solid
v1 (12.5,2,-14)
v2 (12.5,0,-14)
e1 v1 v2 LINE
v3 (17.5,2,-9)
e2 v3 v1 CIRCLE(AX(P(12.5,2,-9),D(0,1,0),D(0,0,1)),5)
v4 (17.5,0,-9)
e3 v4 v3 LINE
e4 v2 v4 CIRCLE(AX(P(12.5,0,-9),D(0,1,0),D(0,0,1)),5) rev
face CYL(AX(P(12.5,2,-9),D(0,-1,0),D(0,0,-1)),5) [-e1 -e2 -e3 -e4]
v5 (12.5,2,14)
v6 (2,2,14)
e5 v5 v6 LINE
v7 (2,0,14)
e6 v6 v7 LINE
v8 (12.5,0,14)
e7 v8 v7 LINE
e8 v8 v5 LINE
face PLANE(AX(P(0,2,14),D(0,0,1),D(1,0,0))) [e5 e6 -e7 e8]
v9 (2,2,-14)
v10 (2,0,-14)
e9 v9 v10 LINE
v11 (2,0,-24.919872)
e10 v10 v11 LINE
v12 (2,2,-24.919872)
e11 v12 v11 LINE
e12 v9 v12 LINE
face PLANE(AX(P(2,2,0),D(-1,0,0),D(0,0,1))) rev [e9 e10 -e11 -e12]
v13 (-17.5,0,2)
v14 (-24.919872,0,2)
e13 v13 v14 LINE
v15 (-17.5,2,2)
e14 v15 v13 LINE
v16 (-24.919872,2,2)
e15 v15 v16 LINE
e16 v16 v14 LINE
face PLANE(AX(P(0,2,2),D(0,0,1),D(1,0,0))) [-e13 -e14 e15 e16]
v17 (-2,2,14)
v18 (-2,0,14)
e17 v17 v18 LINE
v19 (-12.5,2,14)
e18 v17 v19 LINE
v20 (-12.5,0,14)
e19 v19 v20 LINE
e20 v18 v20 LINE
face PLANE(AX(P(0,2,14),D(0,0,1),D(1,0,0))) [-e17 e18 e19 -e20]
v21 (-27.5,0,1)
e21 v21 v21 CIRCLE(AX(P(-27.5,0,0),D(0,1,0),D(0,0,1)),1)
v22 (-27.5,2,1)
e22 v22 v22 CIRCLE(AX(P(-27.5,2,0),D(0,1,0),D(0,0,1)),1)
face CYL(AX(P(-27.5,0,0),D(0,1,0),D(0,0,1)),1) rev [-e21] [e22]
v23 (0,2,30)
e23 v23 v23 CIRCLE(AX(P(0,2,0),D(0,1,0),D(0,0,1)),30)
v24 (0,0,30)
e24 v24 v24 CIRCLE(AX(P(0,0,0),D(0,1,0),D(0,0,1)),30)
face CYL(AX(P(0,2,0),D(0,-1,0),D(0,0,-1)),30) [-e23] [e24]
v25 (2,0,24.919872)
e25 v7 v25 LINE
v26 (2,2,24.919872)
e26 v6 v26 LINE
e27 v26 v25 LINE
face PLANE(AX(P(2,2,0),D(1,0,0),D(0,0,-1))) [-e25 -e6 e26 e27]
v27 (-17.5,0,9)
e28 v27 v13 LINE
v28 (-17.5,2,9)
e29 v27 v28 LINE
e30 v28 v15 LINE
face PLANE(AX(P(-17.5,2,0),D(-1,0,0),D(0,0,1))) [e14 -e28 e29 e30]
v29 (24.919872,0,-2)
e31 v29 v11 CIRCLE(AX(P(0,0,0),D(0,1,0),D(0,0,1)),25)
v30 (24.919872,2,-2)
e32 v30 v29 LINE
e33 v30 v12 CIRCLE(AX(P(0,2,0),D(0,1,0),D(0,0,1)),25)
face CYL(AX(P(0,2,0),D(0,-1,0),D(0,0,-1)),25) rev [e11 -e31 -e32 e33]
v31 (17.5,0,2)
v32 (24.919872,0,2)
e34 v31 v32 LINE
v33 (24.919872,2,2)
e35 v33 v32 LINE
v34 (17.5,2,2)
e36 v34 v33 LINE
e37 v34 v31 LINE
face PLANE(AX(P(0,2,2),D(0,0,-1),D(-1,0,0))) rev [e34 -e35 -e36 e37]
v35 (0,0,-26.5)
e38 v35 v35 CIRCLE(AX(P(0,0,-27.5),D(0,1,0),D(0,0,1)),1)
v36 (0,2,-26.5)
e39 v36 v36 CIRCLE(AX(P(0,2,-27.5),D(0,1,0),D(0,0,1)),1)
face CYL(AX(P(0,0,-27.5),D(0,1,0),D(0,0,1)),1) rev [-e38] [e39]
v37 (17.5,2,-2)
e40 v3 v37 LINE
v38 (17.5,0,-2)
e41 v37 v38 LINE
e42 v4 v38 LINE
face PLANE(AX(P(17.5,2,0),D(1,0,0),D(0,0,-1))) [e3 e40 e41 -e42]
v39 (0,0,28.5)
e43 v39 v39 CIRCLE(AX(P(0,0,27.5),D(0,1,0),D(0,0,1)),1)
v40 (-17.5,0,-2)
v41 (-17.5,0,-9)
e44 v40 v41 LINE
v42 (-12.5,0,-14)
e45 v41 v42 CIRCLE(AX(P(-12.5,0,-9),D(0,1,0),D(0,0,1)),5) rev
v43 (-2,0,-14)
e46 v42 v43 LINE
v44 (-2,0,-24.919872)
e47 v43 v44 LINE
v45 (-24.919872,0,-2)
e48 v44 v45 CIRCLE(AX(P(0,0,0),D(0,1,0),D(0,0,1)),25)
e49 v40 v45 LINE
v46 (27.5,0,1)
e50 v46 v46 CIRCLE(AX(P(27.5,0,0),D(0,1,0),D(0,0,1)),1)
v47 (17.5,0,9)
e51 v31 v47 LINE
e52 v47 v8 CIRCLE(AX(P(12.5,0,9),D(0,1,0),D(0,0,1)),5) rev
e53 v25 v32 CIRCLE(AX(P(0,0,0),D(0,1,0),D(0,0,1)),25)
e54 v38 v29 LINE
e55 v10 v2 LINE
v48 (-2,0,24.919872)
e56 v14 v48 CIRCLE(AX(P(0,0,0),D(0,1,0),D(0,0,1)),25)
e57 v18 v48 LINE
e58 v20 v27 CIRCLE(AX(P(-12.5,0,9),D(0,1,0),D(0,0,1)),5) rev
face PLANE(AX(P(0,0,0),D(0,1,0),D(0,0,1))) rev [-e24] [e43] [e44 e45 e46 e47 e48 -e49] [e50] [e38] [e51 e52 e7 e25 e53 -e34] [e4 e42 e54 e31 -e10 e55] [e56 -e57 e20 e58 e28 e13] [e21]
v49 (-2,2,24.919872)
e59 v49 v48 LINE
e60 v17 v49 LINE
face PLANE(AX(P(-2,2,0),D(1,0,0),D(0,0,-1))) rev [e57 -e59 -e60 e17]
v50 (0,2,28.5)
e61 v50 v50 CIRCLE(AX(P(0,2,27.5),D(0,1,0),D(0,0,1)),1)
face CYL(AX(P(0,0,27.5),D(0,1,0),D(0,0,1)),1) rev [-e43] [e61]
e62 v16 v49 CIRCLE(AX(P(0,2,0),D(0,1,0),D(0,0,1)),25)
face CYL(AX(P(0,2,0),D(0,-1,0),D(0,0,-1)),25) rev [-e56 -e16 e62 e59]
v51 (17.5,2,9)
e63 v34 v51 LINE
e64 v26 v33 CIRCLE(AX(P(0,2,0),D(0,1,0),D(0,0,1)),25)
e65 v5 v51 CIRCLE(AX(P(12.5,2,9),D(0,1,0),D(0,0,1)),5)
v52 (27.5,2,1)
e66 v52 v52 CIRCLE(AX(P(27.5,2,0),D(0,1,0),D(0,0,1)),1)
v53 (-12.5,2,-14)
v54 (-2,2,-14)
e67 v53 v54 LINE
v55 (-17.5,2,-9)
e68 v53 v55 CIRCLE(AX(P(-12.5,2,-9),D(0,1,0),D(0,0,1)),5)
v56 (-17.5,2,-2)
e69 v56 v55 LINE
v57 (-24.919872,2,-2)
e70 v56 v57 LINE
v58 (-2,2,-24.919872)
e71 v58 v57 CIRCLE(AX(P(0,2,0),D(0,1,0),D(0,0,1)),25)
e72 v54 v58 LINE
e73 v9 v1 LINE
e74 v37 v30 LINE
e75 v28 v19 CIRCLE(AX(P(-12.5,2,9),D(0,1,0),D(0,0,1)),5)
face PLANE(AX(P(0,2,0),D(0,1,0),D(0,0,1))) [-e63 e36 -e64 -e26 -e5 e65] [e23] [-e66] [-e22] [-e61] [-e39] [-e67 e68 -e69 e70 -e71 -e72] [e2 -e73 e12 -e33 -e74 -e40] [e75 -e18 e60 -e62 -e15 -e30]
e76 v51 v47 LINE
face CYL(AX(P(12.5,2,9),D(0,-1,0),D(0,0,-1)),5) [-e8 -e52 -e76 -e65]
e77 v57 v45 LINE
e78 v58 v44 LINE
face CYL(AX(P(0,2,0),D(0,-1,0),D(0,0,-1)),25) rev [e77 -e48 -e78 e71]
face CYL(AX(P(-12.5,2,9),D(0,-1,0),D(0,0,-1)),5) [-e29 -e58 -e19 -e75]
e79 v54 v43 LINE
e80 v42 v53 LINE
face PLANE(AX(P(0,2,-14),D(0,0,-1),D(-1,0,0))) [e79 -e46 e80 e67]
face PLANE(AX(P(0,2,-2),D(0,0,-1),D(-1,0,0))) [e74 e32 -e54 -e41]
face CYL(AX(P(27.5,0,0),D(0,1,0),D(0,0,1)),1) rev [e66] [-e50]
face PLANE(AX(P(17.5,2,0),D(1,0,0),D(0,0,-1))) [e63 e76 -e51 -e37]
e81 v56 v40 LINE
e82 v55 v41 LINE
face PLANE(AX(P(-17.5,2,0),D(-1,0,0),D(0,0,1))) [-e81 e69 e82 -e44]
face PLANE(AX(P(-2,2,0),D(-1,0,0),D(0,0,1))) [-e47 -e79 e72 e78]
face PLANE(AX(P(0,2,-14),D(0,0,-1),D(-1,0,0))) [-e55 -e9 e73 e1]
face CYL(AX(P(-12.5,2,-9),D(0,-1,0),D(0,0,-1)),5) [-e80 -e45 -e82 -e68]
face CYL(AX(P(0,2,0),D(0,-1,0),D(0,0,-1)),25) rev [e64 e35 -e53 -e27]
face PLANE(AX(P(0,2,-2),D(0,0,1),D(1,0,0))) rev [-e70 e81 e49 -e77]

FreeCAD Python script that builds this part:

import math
import FreeCAD as App
import Part
import Sketcher

V = App.Vector


def edges_at(feature, points):
    """Names of the edges that pass closest to the given points."""
    edges = feature.Shape.Edges
    near = lambda p: min(range(len(edges)), key=lambda i: edges[i].distToShape(Part.Vertex(*p))[0])
    return sorted({f"Edge{near(p) + 1}" for p in points})

doc = App.newDocument("Part")
body = doc.addObject("PartDesign::Body", "Body")

# Sketch on XZ plane
sketch1 = body.newObject("Sketcher::SketchObject", "Sketch")
sketch1.AttachmentSupport = (doc.getObject("XZ_Plane"), [""])
sketch1.MapMode = "FlatFace"
sketch1.addGeometry(Part.Circle(V(0, 0, 0), V(0, 0, 1), 30), False)
sketch1.addGeometry(Part.Circle(V(0, 0, 0), V(0, 0, 1), 25), False)
sketch1.addConstraint(Sketcher.Constraint("Coincident", 0, 3, -1, 1))
sketch1.addConstraint(Sketcher.Constraint("Coincident", 1, 3, -1, 1))
sketch1.addConstraint(Sketcher.Constraint("Diameter", 0, 60.0))
sketch1.addConstraint(Sketcher.Constraint("Diameter", 1, 50.0))
pad1 = body.newObject("PartDesign::Pad", "Pad")
pad1.Profile = sketch1
pad1.Length = 2
pad1.Reversed = True

# Sketch on XZ plane
sketch2 = body.newObject("Sketcher::SketchObject", "Sketch001")
sketch2.AttachmentSupport = (doc.getObject("XZ_Plane"), [""])
sketch2.MapMode = "FlatFace"
sketch2.AttachmentOffset = App.Placement(V(0, 0, -2), App.Rotation())
sketch2.addGeometry(Part.Circle(V(0, -27.5, 0), V(0, 0, 1), 1), False)
sketch2.addGeometry(Part.Circle(V(27.5, 0, 0), V(0, 0, 1), 1), False)
sketch2.addGeometry(Part.Circle(V(0, 27.5, 0), V(0, 0, 1), 1), False)
sketch2.addGeometry(Part.Circle(V(-27.5, 0, 0), V(0, 0, 1), 1), False)
sketch2.addConstraint(Sketcher.Constraint("Equal", 0, 1))
sketch2.addConstraint(Sketcher.Constraint("Equal", 1, 2))
sketch2.addConstraint(Sketcher.Constraint("Equal", 2, 3))
sketch2.addConstraint(Sketcher.Constraint("Symmetric", 0, 3, 2, 3, -1, 1))
sketch2.addConstraint(Sketcher.Constraint("Symmetric", 1, 3, 3, 3, -1, 1))
sketch2.addConstraint(Sketcher.Constraint("PointOnObject", 0, 3, -2))
sketch2.addConstraint(Sketcher.Constraint("PointOnObject", 1, 3, -1))
sketch2.addConstraint(Sketcher.Constraint("Diameter", 0, 2.0))
sketch2.addConstraint(Sketcher.Constraint("DistanceY", 0, 3, 2, 3, 55.0))
sketch2.addConstraint(Sketcher.Constraint("DistanceX", 3, 3, 1, 3, 55.0))
pocket1 = body.newObject("PartDesign::Pocket", "Pocket")
pocket1.Profile = sketch2
pocket1.Length = 2
pocket1.Reversed = True

# Sketch on XZ plane
sketch3 = body.newObject("Sketcher::SketchObject", "Sketch002")
sketch3.AttachmentSupport = (doc.getObject("XZ_Plane"), [""])
sketch3.MapMode = "FlatFace"
sketch3.addGeometry(Part.LineSegment(V(17.5, -14, 0), V(2, -14, 0)), False)
sketch3.addGeometry(Part.LineSegment(V(2, -14, 0), V(2, -24.919872, 0)), False)
sketch3.addGeometry(Part.ArcOfCircle(Part.Circle(V(0, 0, 0), V(0, 0, 1), 25), math.radians(-94.588566), math.radians(-85.411434)), False)
sketch3.addGeometry(Part.LineSegment(V(-2, -24.919872, 0), V(-2, -14, 0)), False)
sketch3.addGeometry(Part.LineSegment(V(-2, -14, 0), V(-17.5, -14, 0)), False)
sketch3.addGeometry(Part.LineSegment(V(-17.5, -14, 0), V(-17.5, -2, 0)), False)
sketch3.addGeometry(Part.LineSegment(V(-17.5, -2, 0), V(-24.919872, -2, 0)), False)
sketch3.addGeometry(Part.ArcOfCircle(Part.Circle(V(0, 0, 0), V(0, 0, 1), 25), math.radians(175.411434), math.radians(184.588566)), False)
sketch3.addGeometry(Part.LineSegment(V(-24.919872, 2, 0), V(-17.5, 2, 0)), False)
sketch3.addGeometry(Part.LineSegment(V(-17.5, 2, 0), V(-17.5, 14, 0)), False)
sketch3.addGeometry(Part.LineSegment(V(-17.5, 14, 0), V(-2, 14, 0)), False)
sketch3.addGeometry(Part.LineSegment(V(-2, 14, 0), V(-2, 24.919872, 0)), False)
sketch3.addGeometry(Part.ArcOfCircle(Part.Circle(V(0, 0, 0), V(0, 0, 1), 25), math.radians(85.411434), math.radians(94.588566)), False)
sketch3.addGeometry(Part.LineSegment(V(2, 24.919872, 0), V(2, 14, 0)), False)
sketch3.addGeometry(Part.LineSegment(V(2, 14, 0), V(17.5, 14, 0)), False)
sketch3.addGeometry(Part.LineSegment(V(17.5, 14, 0), V(17.5, 2, 0)), False)
sketch3.addGeometry(Part.LineSegment(V(17.5, 2, 0), V(24.919872, 2, 0)), False)
sketch3.addGeometry(Part.ArcOfCircle(Part.Circle(V(0, 0, 0), V(0, 0, 1), 25), math.radians(-4.588566), math.radians(4.588566)), False)
sketch3.addGeometry(Part.LineSegment(V(24.919872, -2, 0), V(17.5, -2, 0)), False)
sketch3.addGeometry(Part.LineSegment(V(17.5, -2, 0), V(17.5, -14, 0)), False)
sketch3.addConstraint(Sketcher.Constraint("Coincident", 0, 2, 1, 1))
sketch3.addConstraint(Sketcher.Constraint("Coincident", 1, 2, 2, 2))
sketch3.addConstraint(Sketcher.Constraint("Coincident", 2, 1, 3, 1))
sketch3.addConstraint(Sketcher.Constraint("Coincident", 3, 2, 4, 1))
sketch3.addConstraint(Sketcher.Constraint("Coincident", 4, 2, 5, 1))
sketch3.addConstraint(Sketcher.Constraint("Coincident", 5, 2, 6, 1))
sketch3.addConstraint(Sketcher.Constraint("Coincident", 6, 2, 7, 2))
sketch3.addConstraint(Sketcher.Constraint("Coincident", 7, 1, 8, 1))
sketch3.addConstraint(Sketcher.Constraint("Coincident", 8, 2, 9, 1))
sketch3.addConstraint(Sketcher.Constraint("Coincident", 9, 2, 10, 1))
sketch3.addConstraint(Sketcher.Constraint("Coincident", 10, 2, 11, 1))
sketch3.addConstraint(Sketcher.Constraint("Coincident", 11, 2, 12, 2))
sketch3.addConstraint(Sketcher.Constraint("Coincident", 12, 1, 13, 1))
sketch3.addConstraint(Sketcher.Constraint("Coincident", 13, 2, 14, 1))
sketch3.addConstraint(Sketcher.Constraint("Coincident", 14, 2, 15, 1))
sketch3.addConstraint(Sketcher.Constraint("Coincident", 15, 2, 16, 1))
sketch3.addConstraint(Sketcher.Constraint("Coincident", 16, 2, 17, 2))
sketch3.addConstraint(Sketcher.Constraint("Coincident", 17, 1, 18, 1))
sketch3.addConstraint(Sketcher.Constraint("Coincident", 18, 2, 19, 1))
sketch3.addConstraint(Sketcher.Constraint("Coincident", 19, 2, 0, 1))
sketch3.addConstraint(Sketcher.Constraint("Horizontal", 0))
sketch3.addConstraint(Sketcher.Constraint("Vertical", 1))
sketch3.addConstraint(Sketcher.Constraint("Vertical", 3))
sketch3.addConstraint(Sketcher.Constraint("Horizontal", 4))
sketch3.addConstraint(Sketcher.Constraint("Vertical", 5))
sketch3.addConstraint(Sketcher.Constraint("Horizontal", 6))
sketch3.addConstraint(Sketcher.Constraint("Horizontal", 8))
sketch3.addConstraint(Sketcher.Constraint("Vertical", 9))
sketch3.addConstraint(Sketcher.Constraint("Horizontal", 10))
sketch3.addConstraint(Sketcher.Constraint("Vertical", 11))
sketch3.addConstraint(Sketcher.Constraint("Vertical", 13))
sketch3.addConstraint(Sketcher.Constraint("Horizontal", 14))
sketch3.addConstraint(Sketcher.Constraint("Vertical", 15))
sketch3.addConstraint(Sketcher.Constraint("Horizontal", 16))
sketch3.addConstraint(Sketcher.Constraint("Horizontal", 18))
sketch3.addConstraint(Sketcher.Constraint("Vertical", 19))
sketch3.addConstraint(Sketcher.Constraint("Coincident", 2, 3, -1, 1))
sketch3.addConstraint(Sketcher.Constraint("Coincident", 7, 3, -1, 1))
sketch3.addConstraint(Sketcher.Constraint("Coincident", 12, 3, -1, 1))
sketch3.addConstraint(Sketcher.Constraint("Coincident", 17, 3, -1, 1))
sketch3.addConstraint(Sketcher.Constraint("Equal", 2, 7))
sketch3.addConstraint(Sketcher.Constraint("Equal", 7, 12))
sketch3.addConstraint(Sketcher.Constraint("Equal", 12, 17))
sketch3.addConstraint(Sketcher.Constraint("Symmetric", 0, 2, 10, 2, -1, 1))
sketch3.addConstraint(Sketcher.Constraint("Symmetric", 3, 2, 13, 2, -1, 1))
sketch3.addConstraint(Sketcher.Constraint("Symmetric", 5, 2, 15, 2, -1, 1))
sketch3.addConstraint(Sketcher.Constraint("Symmetric", 8, 2, 18, 2, -1, 1))
sketch3.addConstraint(Sketcher.Constraint("Symmetric", 0, 2, 3, 2, -2))
sketch3.addConstraint(Sketcher.Constraint("Symmetric", 8, 2, 15, 2, -2))
sketch3.addConstraint(Sketcher.Constraint("Radius", 2, 25.0))
sketch3.addConstraint(Sketcher.Constraint("DistanceY", 5, 1, 5, 2, 12.0))
sketch3.addConstraint(Sketcher.Constraint("DistanceX", 0, 2, 0, 1, 15.5))
sketch3.addConstraint(Sketcher.Constraint("DistanceX", -1, 1, 0, 2, 2.0))
sketch3.addConstraint(Sketcher.Constraint("DistanceY", 0, 2, -1, 1, 14.0))
pad2 = body.newObject("PartDesign::Pad", "Pad001")
pad2.Profile = sketch3
pad2.Length = 2
pad2.Reversed = True
doc.recompute()

fillet = body.newObject("PartDesign::Fillet", "Fillet")
fillet.Base = (pad2, edges_at(pad2, [
    (-17.5, 1, 14),
    (17.5, 1, 14),
    (17.5, 1, -14),
    (-17.5, 1, -14),
]))
fillet.Radius = 5

doc.recompute()
